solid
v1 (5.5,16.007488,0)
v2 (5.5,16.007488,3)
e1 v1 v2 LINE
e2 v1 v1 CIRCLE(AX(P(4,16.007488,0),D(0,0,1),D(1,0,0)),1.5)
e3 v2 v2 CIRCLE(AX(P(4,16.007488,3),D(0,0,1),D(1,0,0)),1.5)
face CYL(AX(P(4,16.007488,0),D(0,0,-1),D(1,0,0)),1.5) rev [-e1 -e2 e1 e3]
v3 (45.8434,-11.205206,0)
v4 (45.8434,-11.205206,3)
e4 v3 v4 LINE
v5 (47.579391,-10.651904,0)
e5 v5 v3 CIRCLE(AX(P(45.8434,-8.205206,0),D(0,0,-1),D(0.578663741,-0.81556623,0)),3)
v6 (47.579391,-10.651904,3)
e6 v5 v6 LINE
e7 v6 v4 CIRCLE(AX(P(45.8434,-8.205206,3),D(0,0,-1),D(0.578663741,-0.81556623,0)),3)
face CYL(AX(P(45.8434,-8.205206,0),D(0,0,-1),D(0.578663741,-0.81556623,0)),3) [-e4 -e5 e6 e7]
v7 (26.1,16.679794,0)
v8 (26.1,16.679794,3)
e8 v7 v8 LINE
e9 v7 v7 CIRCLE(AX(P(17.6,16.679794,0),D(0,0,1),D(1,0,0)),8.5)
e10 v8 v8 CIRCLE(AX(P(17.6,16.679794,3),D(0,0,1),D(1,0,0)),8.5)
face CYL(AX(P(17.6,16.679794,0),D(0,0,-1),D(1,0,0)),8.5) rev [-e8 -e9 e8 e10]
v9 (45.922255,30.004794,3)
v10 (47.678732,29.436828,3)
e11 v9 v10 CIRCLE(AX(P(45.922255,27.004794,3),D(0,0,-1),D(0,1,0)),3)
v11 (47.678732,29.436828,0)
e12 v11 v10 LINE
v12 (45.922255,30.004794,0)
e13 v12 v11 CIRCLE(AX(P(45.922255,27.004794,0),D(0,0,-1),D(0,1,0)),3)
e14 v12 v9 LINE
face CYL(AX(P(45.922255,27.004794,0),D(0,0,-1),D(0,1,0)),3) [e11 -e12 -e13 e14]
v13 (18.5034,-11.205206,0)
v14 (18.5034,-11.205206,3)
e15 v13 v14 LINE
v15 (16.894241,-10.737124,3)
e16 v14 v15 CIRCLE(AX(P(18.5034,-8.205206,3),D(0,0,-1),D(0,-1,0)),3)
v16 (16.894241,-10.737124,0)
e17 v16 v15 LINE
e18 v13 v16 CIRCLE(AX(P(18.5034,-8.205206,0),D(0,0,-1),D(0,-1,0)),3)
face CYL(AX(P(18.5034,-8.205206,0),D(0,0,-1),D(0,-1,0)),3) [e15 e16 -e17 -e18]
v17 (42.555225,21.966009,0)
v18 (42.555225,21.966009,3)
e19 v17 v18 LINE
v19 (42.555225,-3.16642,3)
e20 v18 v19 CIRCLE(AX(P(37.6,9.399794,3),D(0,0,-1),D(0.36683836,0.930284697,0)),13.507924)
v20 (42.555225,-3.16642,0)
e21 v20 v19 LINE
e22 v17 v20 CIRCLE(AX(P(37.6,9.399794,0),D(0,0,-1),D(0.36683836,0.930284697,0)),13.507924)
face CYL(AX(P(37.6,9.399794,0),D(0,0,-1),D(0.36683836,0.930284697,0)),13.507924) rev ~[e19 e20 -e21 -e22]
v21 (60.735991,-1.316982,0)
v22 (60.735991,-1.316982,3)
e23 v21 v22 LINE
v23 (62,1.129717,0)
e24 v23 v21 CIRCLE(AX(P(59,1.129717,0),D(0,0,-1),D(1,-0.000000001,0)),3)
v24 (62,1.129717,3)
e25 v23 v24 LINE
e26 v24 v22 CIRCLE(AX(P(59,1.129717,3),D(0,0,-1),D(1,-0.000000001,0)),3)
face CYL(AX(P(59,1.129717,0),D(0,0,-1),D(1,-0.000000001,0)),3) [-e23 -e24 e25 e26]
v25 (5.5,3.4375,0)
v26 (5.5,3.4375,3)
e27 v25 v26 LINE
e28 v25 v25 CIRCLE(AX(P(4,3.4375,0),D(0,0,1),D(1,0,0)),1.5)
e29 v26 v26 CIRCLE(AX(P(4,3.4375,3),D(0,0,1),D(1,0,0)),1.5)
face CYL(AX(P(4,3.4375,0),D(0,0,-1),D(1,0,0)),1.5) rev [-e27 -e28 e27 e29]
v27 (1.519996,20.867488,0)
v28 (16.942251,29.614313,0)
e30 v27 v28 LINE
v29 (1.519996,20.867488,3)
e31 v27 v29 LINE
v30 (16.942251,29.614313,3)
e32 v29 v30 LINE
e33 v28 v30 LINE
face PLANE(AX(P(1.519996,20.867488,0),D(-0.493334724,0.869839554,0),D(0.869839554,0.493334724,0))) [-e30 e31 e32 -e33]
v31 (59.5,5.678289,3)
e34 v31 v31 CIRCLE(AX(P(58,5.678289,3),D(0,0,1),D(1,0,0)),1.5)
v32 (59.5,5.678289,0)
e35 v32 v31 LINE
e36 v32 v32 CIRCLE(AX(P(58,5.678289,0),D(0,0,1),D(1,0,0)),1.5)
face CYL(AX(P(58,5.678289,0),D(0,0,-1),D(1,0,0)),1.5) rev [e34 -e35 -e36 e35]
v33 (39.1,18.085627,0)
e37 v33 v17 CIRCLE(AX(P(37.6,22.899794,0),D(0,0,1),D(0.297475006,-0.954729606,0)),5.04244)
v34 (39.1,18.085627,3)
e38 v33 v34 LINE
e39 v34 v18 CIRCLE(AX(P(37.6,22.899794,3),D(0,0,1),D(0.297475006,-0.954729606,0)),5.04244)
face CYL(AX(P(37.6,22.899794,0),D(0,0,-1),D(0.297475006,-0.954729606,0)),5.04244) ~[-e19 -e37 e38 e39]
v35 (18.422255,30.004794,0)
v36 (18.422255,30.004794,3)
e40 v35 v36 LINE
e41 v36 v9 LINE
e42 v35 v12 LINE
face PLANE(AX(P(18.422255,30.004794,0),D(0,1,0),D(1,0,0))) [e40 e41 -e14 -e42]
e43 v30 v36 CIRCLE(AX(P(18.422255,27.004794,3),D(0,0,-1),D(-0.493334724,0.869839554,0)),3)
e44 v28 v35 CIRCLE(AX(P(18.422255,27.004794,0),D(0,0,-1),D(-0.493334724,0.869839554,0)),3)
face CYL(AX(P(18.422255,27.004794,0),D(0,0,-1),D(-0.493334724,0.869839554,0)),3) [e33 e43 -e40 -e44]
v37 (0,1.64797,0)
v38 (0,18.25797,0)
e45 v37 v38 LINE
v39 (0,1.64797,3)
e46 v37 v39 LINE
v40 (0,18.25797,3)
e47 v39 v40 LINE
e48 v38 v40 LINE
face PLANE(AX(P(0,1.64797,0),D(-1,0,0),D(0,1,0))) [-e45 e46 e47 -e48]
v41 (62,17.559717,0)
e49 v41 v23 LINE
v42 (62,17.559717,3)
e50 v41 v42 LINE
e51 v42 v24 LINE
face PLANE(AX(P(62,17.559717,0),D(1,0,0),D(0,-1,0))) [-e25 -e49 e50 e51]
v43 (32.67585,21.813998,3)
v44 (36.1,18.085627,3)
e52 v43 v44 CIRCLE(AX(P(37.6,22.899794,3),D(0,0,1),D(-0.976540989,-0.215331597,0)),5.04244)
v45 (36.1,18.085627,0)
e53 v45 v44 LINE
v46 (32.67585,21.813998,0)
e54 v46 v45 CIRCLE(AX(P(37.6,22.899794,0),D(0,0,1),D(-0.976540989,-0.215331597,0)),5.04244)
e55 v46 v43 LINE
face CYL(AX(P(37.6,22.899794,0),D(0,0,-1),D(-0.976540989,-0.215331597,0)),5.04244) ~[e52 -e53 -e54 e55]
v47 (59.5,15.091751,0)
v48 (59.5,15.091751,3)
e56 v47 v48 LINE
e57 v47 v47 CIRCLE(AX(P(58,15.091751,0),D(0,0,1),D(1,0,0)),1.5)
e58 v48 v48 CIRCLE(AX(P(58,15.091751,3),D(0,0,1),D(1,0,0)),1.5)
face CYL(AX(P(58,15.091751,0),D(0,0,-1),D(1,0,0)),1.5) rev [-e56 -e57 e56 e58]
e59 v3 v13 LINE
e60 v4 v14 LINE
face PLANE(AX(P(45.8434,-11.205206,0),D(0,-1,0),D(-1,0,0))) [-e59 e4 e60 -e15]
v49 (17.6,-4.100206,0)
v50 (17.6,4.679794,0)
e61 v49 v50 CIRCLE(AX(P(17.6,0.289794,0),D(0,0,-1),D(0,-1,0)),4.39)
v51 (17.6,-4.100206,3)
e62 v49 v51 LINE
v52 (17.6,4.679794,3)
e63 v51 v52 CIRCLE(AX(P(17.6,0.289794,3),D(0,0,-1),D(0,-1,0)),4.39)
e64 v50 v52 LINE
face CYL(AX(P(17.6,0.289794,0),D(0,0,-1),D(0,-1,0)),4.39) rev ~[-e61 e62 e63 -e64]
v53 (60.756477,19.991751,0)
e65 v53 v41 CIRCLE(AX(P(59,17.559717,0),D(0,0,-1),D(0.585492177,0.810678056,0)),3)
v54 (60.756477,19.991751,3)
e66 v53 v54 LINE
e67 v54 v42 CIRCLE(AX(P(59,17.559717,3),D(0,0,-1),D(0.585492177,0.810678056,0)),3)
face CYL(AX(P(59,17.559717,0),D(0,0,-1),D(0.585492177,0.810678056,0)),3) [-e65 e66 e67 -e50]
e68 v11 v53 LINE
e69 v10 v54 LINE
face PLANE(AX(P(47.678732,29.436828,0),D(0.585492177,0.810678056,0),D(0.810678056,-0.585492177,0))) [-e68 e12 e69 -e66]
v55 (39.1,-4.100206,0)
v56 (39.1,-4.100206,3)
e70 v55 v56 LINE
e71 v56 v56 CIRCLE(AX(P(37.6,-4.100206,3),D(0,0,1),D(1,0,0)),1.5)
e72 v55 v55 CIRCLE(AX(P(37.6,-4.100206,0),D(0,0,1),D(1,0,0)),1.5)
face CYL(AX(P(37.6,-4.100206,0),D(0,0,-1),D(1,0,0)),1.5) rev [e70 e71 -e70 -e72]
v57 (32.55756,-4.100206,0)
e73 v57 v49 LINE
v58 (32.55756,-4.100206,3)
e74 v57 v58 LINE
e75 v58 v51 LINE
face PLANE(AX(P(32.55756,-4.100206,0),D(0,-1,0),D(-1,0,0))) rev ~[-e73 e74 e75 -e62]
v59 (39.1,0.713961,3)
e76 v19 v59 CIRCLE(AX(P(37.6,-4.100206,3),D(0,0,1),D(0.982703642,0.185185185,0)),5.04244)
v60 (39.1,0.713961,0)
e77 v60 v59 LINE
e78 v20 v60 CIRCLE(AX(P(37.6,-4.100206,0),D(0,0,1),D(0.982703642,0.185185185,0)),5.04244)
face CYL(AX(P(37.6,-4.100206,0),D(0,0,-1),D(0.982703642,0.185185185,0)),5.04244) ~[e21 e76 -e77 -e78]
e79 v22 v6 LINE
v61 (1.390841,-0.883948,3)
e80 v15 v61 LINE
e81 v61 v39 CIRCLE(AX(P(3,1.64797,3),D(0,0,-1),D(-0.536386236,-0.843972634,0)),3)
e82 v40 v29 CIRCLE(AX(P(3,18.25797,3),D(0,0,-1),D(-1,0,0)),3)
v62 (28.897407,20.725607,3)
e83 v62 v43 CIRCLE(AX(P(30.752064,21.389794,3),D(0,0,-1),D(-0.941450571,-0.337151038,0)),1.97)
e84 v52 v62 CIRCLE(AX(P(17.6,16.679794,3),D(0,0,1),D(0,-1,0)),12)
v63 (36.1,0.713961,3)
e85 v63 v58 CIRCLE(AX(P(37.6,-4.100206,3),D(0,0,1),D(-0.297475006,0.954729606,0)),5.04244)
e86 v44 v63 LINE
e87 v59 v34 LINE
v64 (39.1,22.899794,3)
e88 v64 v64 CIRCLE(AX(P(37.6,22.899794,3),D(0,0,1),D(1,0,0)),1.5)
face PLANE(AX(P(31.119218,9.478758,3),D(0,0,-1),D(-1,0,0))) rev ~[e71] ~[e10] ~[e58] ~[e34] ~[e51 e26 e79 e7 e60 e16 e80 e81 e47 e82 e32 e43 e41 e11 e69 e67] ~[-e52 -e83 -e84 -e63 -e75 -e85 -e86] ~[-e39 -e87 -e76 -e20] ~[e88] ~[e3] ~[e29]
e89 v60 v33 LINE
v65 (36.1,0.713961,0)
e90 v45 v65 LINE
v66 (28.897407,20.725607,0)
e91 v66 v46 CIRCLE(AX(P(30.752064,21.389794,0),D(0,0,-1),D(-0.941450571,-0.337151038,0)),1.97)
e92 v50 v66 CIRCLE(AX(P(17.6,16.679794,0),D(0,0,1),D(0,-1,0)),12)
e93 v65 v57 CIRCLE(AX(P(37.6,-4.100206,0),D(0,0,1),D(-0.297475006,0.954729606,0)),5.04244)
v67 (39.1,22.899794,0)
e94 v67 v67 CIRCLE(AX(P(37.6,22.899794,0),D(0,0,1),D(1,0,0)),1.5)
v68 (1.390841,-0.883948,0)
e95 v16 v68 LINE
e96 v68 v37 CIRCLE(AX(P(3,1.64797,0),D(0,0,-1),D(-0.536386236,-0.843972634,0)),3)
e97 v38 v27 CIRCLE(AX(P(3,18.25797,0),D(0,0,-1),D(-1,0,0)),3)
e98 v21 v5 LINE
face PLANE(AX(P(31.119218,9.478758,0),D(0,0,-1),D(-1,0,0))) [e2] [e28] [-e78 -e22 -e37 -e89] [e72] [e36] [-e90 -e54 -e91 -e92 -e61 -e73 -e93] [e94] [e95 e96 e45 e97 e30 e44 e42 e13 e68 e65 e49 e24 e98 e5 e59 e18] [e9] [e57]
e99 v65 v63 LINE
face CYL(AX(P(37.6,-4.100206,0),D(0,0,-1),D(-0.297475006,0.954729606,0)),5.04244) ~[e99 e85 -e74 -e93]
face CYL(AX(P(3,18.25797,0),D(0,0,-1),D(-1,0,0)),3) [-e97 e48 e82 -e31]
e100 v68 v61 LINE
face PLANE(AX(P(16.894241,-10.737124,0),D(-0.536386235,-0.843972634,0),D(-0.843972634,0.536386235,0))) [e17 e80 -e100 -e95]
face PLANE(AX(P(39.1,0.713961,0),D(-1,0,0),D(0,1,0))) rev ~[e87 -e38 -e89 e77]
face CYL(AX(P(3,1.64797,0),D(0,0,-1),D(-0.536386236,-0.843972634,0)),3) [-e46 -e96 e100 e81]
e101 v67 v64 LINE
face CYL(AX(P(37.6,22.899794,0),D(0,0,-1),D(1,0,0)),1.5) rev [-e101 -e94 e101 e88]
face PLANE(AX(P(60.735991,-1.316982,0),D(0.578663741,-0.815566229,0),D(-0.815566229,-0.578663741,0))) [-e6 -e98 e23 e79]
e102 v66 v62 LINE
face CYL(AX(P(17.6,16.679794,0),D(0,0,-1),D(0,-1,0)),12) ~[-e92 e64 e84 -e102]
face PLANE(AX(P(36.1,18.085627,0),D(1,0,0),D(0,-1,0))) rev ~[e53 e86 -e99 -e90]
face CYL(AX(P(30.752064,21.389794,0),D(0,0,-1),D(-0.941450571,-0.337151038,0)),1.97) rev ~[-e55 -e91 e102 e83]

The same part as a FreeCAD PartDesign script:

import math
import FreeCAD as App
import Part
import Sketcher
Q = App.Units.Quantity

doc = App.newDocument("Part")
params = doc.addObject("Spreadsheet::Sheet", "Params")
for row, (alias, value) in enumerate([
    ("sketch1_diameter", "3 mm"),
    ("sketch1_diameter2", "17 mm"),
    ("sketch1_radius", "3 mm"),
    ("sketch1_radius2", "12 mm"),
    ("sketch1_radius3", "4.39 mm"),
    ("pad1_length", "3 mm"),
], start=1):
    params.set(f"A{row}", alias)
    params.set(f"B{row}", "=" + value)
    params.setAlias(f"B{row}", alias)

body = doc.addObject("PartDesign::Body", "Body")

sketch1 = body.newObject("Sketcher::SketchObject", "Sketch")
sketch1.AttachmentSupport = (doc.getObject("XY_Plane"), [""])
sketch1.MapMode = "FlatFace"
sketch1.addGeometry(Part.LineSegment(App.Vector(0, 18.25797, 0), App.Vector(0, 1.64797, 0)), False)
sketch1.addGeometry(Part.ArcOfCircle(Part.Circle(App.Vector(3, 1.64797, 0), App.Vector(0, 0, 1), 3), math.radians(180), math.radians(237.562029)), False)
sketch1.addGeometry(Part.LineSegment(App.Vector(1.390841, -0.883948, 0), App.Vector(16.894241, -10.737124, 0)), False)
sketch1.addGeometry(Part.ArcOfCircle(Part.Circle(App.Vector(18.5034, -8.205206, 0), App.Vector(0, 0, 1), 3), math.radians(-122.437971), math.radians(-90)), False)
sketch1.addGeometry(Part.LineSegment(App.Vector(18.5034, -11.205206, 0), App.Vector(45.8434, -11.205206, 0)), False)
sketch1.addGeometry(Part.ArcOfCircle(Part.Circle(App.Vector(45.8434, -8.205206, 0), App.Vector(0, 0, 1), 3), math.radians(-90), math.radians(-54.643388)), False)
sketch1.addGeometry(Part.LineSegment(App.Vector(47.579391, -10.651904, 0), App.Vector(60.735991, -1.316982, 0)), False)
sketch1.addGeometry(Part.ArcOfCircle(Part.Circle(App.Vector(59, 1.129717, 0), App.Vector(0, 0, 1), 3), math.radians(-54.643388), math.radians(0)), False)
sketch1.addGeometry(Part.LineSegment(App.Vector(62, 1.129717, 0), App.Vector(62, 17.559717, 0)), False)
sketch1.addGeometry(Part.ArcOfCircle(Part.Circle(App.Vector(59, 17.559717, 0), App.Vector(0, 0, 1), 3), math.radians(0), math.radians(54.162232)), False)
sketch1.addGeometry(Part.LineSegment(App.Vector(60.756477, 19.991751, 0), App.Vector(47.678732, 29.436828, 0)), False)
sketch1.addGeometry(Part.ArcOfCircle(Part.Circle(App.Vector(45.922255, 27.004794, 0), App.Vector(0, 0, 1), 3), math.radians(54.162232), math.radians(90)), False)
sketch1.addGeometry(Part.LineSegment(App.Vector(45.922255, 30.004794, 0), App.Vector(18.422255, 30.004794, 0)), False)
sketch1.addGeometry(Part.ArcOfCircle(Part.Circle(App.Vector(18.422255, 27.004794, 0), App.Vector(0, 0, 1), 3), math.radians(90), math.radians(119.56)), False)
sketch1.addGeometry(Part.LineSegment(App.Vector(16.942251, 29.614313, 0), App.Vector(1.519996, 20.867488, 0)), False)
sketch1.addGeometry(Part.ArcOfCircle(Part.Circle(App.Vector(3, 18.25797, 0), App.Vector(0, 0, 1), 3), math.radians(119.56), math.radians(180)), False)
sketch1.addGeometry(Part.Circle(App.Vector(37.6, -4.100206, 0), App.Vector(0, 0, 1), 1.5), False)
sketch1.addGeometry(Part.Circle(App.Vector(58, 5.678289, 0), App.Vector(0, 0, 1), 1.5), False)
sketch1.addGeometry(Part.LineSegment(App.Vector(39.1, 0.713961, 0), App.Vector(39.1, 18.085627, 0)), False)
sketch1.addGeometry(Part.ArcOfCircle(Part.Circle(App.Vector(37.6, 22.899794, 0), App.Vector(0, 0, 1), 5.04244), math.radians(-72.693991), math.radians(-10.671929)), False)
sketch1.addGeometry(Part.ArcOfCircle(Part.Circle(App.Vector(37.6, 9.399794, 0), App.Vector(0, 0, 1), 13.507924), math.radians(-68.479238), math.radians(68.479238)), False)
sketch1.addGeometry(Part.ArcOfCircle(Part.Circle(App.Vector(37.6, -4.100206, 0), App.Vector(0, 0, 1), 5.04244), math.radians(10.671929), math.radians(72.693991)), False)
sketch1.addGeometry(Part.LineSegment(App.Vector(36.1, 18.085627, 0), App.Vector(36.1, 0.713961, 0)), False)
sketch1.addGeometry(Part.ArcOfCircle(Part.Circle(App.Vector(37.6, -4.100206, 0), App.Vector(0, 0, 1), 5.04244), math.radians(107.306009), math.radians(180)), False)
sketch1.addGeometry(Part.LineSegment(App.Vector(32.55756, -4.100206, 0), App.Vector(17.6, -4.100206, 0)), False)
sketch1.addGeometry(Part.ArcOfCircle(Part.Circle(App.Vector(17.6, 0.289794, 0), App.Vector(0, 0, 1), 4.39), math.radians(90), math.radians(270)), False)
sketch1.addGeometry(Part.ArcOfCircle(Part.Circle(App.Vector(17.6, 16.679794, 0), App.Vector(0, 0, 1), 12), math.radians(-90), math.radians(19.703395)), False)
sketch1.addGeometry(Part.ArcOfCircle(Part.Circle(App.Vector(30.752064, 21.389794, 0), App.Vector(0, 0, 1), 1.97), math.radians(12.434982), math.radians(199.703395)), False)
sketch1.addGeometry(Part.ArcOfCircle(Part.Circle(App.Vector(37.6, 22.899794, 0), App.Vector(0, 0, 1), 5.04244), math.radians(-167.565018), math.radians(-107.306009)), False)
sketch1.addGeometry(Part.Circle(App.Vector(4, 3.4375, 0), App.Vector(0, 0, 1), 1.5), False)
sketch1.addGeometry(Part.Circle(App.Vector(58, 15.091751, 0), App.Vector(0, 0, 1), 1.5), False)
sketch1.addGeometry(Part.Circle(App.Vector(37.6, 22.899794, 0), App.Vector(0, 0, 1), 1.5), False)
sketch1.addGeometry(Part.Circle(App.Vector(17.6, 16.679794, 0), App.Vector(0, 0, 1), 8.5), False)
sketch1.addGeometry(Part.Circle(App.Vector(4, 16.007488, 0), App.Vector(0, 0, 1), 1.5), False)
sketch1.addConstraint(Sketcher.Constraint("Tangent", 0, 2, 1, 1))
sketch1.addConstraint(Sketcher.Constraint("Tangent", 1, 2, 2, 1))
sketch1.addConstraint(Sketcher.Constraint("Tangent", 2, 2, 3, 1))
sketch1.addConstraint(Sketcher.Constraint("Tangent", 3, 2, 4, 1))
sketch1.addConstraint(Sketcher.Constraint("Tangent", 4, 2, 5, 1))
sketch1.addConstraint(Sketcher.Constraint("Tangent", 5, 2, 6, 1))
sketch1.addConstraint(Sketcher.Constraint("Tangent", 6, 2, 7, 1))
sketch1.addConstraint(Sketcher.Constraint("Tangent", 7, 2, 8, 1))
sketch1.addConstraint(Sketcher.Constraint("Tangent", 8, 2, 9, 1))
sketch1.addConstraint(Sketcher.Constraint("Tangent", 9, 2, 10, 1))
sketch1.addConstraint(Sketcher.Constraint("Tangent", 10, 2, 11, 1))
sketch1.addConstraint(Sketcher.Constraint("Tangent", 11, 2, 12, 1))
sketch1.addConstraint(Sketcher.Constraint("Tangent", 12, 2, 13, 1))
sketch1.addConstraint(Sketcher.Constraint("Tangent", 13, 2, 14, 1))
sketch1.addConstraint(Sketcher.Constraint("Tangent", 14, 2, 15, 1))
sketch1.addConstraint(Sketcher.Constraint("Tangent", 15, 2, 0, 1))
sketch1.addConstraint(Sketcher.Constraint("Coincident", 18, 2, 19, 1))
sketch1.addConstraint(Sketcher.Constraint("Coincident", 19, 2, 20, 2))
sketch1.addConstraint(Sketcher.Constraint("Coincident", 20, 1, 21, 1))
sketch1.addConstraint(Sketcher.Constraint("Coincident", 21, 2, 18, 1))
sketch1.addConstraint(Sketcher.Constraint("Coincident", 22, 2, 23, 1))
sketch1.addConstraint(Sketcher.Constraint("Coincident", 23, 2, 24, 1))
sketch1.addConstraint(Sketcher.Constraint("Tangent", 24, 2, 25, 2))
sketch1.addConstraint(Sketcher.Constraint("Tangent", 25, 1, 26, 1))
sketch1.addConstraint(Sketcher.Constraint("Tangent", 26, 2, 27, 2))
sketch1.addConstraint(Sketcher.Constraint("Tangent", 27, 1, 28, 1))
sketch1.addConstraint(Sketcher.Constraint("Coincident", 28, 2, 22, 1))
sketch1.addConstraint(Sketcher.Constraint("Vertical", 0))
sketch1.addConstraint(Sketcher.Constraint("Horizontal", 4))
sketch1.addConstraint(Sketcher.Constraint("Vertical", 8))
sketch1.addConstraint(Sketcher.Constraint("Horizontal", 12))
sketch1.addConstraint(Sketcher.Constraint("Vertical", 18))
sketch1.addConstraint(Sketcher.Constraint("Vertical", 22))
sketch1.addConstraint(Sketcher.Constraint("Horizontal", 24))
sketch1.addConstraint(Sketcher.Constraint("Coincident", 21, 3, 16, 3))
sketch1.addConstraint(Sketcher.Constraint("Coincident", 23, 3, 16, 3))
sketch1.addConstraint(Sketcher.Constraint("Coincident", 28, 3, 19, 3))
sketch1.addConstraint(Sketcher.Constraint("Coincident", 31, 3, 19, 3))
sketch1.addConstraint(Sketcher.Constraint("Coincident", 32, 3, 26, 3))
sketch1.addConstraint(Sketcher.Constraint("Equal", 1, 3))
sketch1.addConstraint(Sketcher.Constraint("Equal", 3, 5))
sketch1.addConstraint(Sketcher.Constraint("Equal", 5, 7))
sketch1.addConstraint(Sketcher.Constraint("Equal", 7, 9))
sketch1.addConstraint(Sketcher.Constraint("Equal", 9, 11))
sketch1.addConstraint(Sketcher.Constraint("Equal", 11, 13))
sketch1.addConstraint(Sketcher.Constraint("Equal", 13, 15))
sketch1.addConstraint(Sketcher.Constraint("Equal", 16, 17))
sketch1.addConstraint(Sketcher.Constraint("Equal", 19, 21))
sketch1.addConstraint(Sketcher.Constraint("Equal", 21, 23))
sketch1.addConstraint(Sketcher.Constraint("Equal", 23, 28))
sketch1.addConstraint(Sketcher.Constraint("Equal", 17, 29))
sketch1.addConstraint(Sketcher.Constraint("Equal", 29, 30))
sketch1.addConstraint(Sketcher.Constraint("Equal", 30, 31))
sketch1.addConstraint(Sketcher.Constraint("Equal", 31, 33))
sketch1.addConstraint(Sketcher.Constraint("PointOnObject", 0, 2, -2))
sketch1.addConstraint(Sketcher.Constraint("Horizontal", 21, 2, 22, 2))
sketch1.addConstraint(Sketcher.Constraint("Horizontal", 21, 3, 23, 2))
sketch1.addConstraint(Sketcher.Constraint("Horizontal", 18, 2, 28, 2))
sketch1.addConstraint(Sketcher.Constraint("Vertical", 19, 3, 20, 3))
sketch1.addConstraint(Sketcher.Constraint("Vertical", 25, 3, 26, 3))
sketch1.addConstraint(Sketcher.Constraint("Vertical", 17, 3, 30, 3))
sketch1.addConstraint(Sketcher.Constraint("Vertical", 29, 3, 33, 3))
sketch1.addConstraint(Sketcher.Constraint("Vertical", 19, 2, 20, 1))
sketch1.addConstraint(Sketcher.Constraint("Equal", 6, 10))
sketch1.addConstraint(Sketcher.Constraint("Diameter", 16, 3.0))
sketch1.addConstraint(Sketcher.Constraint("Diameter", 32, 17.0))
sketch1.addConstraint(Sketcher.Constraint("Radius", 1, 3.0))
sketch1.addConstraint(Sketcher.Constraint("Radius", 26, 12.0))
sketch1.addConstraint(Sketcher.Constraint("Radius", 25, 4.39))
sketch1.addConstraint(Sketcher.Constraint("Radius", 27, 1.97))
sketch1.addConstraint(Sketcher.Constraint("DistanceX", 12, 2, 12, 1, 27.5))
sketch1.addConstraint(Sketcher.Constraint("DistanceX", -1, 1, 7, 3, 59.0))
sketch1.addConstraint(Sketcher.Constraint("DistanceX", -1, 1, 17, 3, 58.0))
sketch1.addConstraint(Sketcher.Constraint("DistanceX", -1, 1, 29, 3, 4.0))
sketch1.addConstraint(Sketcher.Constraint("DistanceY", 16, 3, 19, 3, 27.0))
sketch1.addConstraint(Sketcher.Constraint("DistanceX", 25, 3, 23, 3, 20.0))
sketch1.addConstraint(Sketcher.Constraint("DistanceX", 22, 2, 21, 2, 3.0))
sketch1.addConstraint(Sketcher.Constraint("DistanceX", 4, 1, 4, 2, 27.34))
sketch1.addConstraint(Sketcher.Constraint("DistanceY", 0, 2, 0, 1, 16.61))
sketch1.addConstraint(Sketcher.Constraint("DistanceY", 8, 1, 8, 2, 16.43))
sketch1.addConstraint(Sketcher.Constraint("DistanceX", -1, 1, 16, 3, 37.6))
sketch1.addConstraint(Sketcher.Constraint("Angle", 14, Q("-150.44 deg")))
sketch1.addConstraint(Sketcher.Constraint("DistanceY", 30, 3, 9, 2, 4.9))
sketch1.addConstraint(Sketcher.Constraint("Distance", 14, 17.73))
sketch1.addConstraint(Sketcher.Constraint("Radius", 19, 5.04244))
sketch1.addConstraint(Sketcher.Constraint("DistanceY", 5, 3, 11, 3, 35.21))
sketch1.addConstraint(Sketcher.Constraint("DistanceY", 33, 3, 14, 2, 4.86))
sketch1.addConstraint(Sketcher.Constraint("Radius", 20, 13.507924))
sketch1.addConstraint(Sketcher.Constraint("DistanceY", 5, 3, 16, 3, 4.105))
sketch1.addConstraint(Sketcher.Constraint("DistanceX", -1, 1, 3, 3, 18.5034))
sketch1.addConstraint(Sketcher.Constraint("DistanceY", -1, 1, 29, 3, 3.4375))
sketch1.addConstraint(Sketcher.Constraint("DistanceY", -1, 1, 1, 3, 1.64797))
sketch1.addConstraint(Sketcher.Constraint("DistanceY", -1, 1, 17, 3, 5.678289))
sketch1.setExpression("Constraints[64]", "Params.sketch1_diameter")
sketch1.setExpression("Constraints[65]", "Params.sketch1_diameter2")
sketch1.setExpression("Constraints[66]", "Params.sketch1_radius")
sketch1.setExpression("Constraints[67]", "Params.sketch1_radius2")
sketch1.setExpression("Constraints[68]", "Params.sketch1_radius3")
pad1 = body.newObject("PartDesign::Pad", "Pad")
pad1.Profile = sketch1
pad1.setExpression("Length", "Params.pad1_length")

doc.recompute()
